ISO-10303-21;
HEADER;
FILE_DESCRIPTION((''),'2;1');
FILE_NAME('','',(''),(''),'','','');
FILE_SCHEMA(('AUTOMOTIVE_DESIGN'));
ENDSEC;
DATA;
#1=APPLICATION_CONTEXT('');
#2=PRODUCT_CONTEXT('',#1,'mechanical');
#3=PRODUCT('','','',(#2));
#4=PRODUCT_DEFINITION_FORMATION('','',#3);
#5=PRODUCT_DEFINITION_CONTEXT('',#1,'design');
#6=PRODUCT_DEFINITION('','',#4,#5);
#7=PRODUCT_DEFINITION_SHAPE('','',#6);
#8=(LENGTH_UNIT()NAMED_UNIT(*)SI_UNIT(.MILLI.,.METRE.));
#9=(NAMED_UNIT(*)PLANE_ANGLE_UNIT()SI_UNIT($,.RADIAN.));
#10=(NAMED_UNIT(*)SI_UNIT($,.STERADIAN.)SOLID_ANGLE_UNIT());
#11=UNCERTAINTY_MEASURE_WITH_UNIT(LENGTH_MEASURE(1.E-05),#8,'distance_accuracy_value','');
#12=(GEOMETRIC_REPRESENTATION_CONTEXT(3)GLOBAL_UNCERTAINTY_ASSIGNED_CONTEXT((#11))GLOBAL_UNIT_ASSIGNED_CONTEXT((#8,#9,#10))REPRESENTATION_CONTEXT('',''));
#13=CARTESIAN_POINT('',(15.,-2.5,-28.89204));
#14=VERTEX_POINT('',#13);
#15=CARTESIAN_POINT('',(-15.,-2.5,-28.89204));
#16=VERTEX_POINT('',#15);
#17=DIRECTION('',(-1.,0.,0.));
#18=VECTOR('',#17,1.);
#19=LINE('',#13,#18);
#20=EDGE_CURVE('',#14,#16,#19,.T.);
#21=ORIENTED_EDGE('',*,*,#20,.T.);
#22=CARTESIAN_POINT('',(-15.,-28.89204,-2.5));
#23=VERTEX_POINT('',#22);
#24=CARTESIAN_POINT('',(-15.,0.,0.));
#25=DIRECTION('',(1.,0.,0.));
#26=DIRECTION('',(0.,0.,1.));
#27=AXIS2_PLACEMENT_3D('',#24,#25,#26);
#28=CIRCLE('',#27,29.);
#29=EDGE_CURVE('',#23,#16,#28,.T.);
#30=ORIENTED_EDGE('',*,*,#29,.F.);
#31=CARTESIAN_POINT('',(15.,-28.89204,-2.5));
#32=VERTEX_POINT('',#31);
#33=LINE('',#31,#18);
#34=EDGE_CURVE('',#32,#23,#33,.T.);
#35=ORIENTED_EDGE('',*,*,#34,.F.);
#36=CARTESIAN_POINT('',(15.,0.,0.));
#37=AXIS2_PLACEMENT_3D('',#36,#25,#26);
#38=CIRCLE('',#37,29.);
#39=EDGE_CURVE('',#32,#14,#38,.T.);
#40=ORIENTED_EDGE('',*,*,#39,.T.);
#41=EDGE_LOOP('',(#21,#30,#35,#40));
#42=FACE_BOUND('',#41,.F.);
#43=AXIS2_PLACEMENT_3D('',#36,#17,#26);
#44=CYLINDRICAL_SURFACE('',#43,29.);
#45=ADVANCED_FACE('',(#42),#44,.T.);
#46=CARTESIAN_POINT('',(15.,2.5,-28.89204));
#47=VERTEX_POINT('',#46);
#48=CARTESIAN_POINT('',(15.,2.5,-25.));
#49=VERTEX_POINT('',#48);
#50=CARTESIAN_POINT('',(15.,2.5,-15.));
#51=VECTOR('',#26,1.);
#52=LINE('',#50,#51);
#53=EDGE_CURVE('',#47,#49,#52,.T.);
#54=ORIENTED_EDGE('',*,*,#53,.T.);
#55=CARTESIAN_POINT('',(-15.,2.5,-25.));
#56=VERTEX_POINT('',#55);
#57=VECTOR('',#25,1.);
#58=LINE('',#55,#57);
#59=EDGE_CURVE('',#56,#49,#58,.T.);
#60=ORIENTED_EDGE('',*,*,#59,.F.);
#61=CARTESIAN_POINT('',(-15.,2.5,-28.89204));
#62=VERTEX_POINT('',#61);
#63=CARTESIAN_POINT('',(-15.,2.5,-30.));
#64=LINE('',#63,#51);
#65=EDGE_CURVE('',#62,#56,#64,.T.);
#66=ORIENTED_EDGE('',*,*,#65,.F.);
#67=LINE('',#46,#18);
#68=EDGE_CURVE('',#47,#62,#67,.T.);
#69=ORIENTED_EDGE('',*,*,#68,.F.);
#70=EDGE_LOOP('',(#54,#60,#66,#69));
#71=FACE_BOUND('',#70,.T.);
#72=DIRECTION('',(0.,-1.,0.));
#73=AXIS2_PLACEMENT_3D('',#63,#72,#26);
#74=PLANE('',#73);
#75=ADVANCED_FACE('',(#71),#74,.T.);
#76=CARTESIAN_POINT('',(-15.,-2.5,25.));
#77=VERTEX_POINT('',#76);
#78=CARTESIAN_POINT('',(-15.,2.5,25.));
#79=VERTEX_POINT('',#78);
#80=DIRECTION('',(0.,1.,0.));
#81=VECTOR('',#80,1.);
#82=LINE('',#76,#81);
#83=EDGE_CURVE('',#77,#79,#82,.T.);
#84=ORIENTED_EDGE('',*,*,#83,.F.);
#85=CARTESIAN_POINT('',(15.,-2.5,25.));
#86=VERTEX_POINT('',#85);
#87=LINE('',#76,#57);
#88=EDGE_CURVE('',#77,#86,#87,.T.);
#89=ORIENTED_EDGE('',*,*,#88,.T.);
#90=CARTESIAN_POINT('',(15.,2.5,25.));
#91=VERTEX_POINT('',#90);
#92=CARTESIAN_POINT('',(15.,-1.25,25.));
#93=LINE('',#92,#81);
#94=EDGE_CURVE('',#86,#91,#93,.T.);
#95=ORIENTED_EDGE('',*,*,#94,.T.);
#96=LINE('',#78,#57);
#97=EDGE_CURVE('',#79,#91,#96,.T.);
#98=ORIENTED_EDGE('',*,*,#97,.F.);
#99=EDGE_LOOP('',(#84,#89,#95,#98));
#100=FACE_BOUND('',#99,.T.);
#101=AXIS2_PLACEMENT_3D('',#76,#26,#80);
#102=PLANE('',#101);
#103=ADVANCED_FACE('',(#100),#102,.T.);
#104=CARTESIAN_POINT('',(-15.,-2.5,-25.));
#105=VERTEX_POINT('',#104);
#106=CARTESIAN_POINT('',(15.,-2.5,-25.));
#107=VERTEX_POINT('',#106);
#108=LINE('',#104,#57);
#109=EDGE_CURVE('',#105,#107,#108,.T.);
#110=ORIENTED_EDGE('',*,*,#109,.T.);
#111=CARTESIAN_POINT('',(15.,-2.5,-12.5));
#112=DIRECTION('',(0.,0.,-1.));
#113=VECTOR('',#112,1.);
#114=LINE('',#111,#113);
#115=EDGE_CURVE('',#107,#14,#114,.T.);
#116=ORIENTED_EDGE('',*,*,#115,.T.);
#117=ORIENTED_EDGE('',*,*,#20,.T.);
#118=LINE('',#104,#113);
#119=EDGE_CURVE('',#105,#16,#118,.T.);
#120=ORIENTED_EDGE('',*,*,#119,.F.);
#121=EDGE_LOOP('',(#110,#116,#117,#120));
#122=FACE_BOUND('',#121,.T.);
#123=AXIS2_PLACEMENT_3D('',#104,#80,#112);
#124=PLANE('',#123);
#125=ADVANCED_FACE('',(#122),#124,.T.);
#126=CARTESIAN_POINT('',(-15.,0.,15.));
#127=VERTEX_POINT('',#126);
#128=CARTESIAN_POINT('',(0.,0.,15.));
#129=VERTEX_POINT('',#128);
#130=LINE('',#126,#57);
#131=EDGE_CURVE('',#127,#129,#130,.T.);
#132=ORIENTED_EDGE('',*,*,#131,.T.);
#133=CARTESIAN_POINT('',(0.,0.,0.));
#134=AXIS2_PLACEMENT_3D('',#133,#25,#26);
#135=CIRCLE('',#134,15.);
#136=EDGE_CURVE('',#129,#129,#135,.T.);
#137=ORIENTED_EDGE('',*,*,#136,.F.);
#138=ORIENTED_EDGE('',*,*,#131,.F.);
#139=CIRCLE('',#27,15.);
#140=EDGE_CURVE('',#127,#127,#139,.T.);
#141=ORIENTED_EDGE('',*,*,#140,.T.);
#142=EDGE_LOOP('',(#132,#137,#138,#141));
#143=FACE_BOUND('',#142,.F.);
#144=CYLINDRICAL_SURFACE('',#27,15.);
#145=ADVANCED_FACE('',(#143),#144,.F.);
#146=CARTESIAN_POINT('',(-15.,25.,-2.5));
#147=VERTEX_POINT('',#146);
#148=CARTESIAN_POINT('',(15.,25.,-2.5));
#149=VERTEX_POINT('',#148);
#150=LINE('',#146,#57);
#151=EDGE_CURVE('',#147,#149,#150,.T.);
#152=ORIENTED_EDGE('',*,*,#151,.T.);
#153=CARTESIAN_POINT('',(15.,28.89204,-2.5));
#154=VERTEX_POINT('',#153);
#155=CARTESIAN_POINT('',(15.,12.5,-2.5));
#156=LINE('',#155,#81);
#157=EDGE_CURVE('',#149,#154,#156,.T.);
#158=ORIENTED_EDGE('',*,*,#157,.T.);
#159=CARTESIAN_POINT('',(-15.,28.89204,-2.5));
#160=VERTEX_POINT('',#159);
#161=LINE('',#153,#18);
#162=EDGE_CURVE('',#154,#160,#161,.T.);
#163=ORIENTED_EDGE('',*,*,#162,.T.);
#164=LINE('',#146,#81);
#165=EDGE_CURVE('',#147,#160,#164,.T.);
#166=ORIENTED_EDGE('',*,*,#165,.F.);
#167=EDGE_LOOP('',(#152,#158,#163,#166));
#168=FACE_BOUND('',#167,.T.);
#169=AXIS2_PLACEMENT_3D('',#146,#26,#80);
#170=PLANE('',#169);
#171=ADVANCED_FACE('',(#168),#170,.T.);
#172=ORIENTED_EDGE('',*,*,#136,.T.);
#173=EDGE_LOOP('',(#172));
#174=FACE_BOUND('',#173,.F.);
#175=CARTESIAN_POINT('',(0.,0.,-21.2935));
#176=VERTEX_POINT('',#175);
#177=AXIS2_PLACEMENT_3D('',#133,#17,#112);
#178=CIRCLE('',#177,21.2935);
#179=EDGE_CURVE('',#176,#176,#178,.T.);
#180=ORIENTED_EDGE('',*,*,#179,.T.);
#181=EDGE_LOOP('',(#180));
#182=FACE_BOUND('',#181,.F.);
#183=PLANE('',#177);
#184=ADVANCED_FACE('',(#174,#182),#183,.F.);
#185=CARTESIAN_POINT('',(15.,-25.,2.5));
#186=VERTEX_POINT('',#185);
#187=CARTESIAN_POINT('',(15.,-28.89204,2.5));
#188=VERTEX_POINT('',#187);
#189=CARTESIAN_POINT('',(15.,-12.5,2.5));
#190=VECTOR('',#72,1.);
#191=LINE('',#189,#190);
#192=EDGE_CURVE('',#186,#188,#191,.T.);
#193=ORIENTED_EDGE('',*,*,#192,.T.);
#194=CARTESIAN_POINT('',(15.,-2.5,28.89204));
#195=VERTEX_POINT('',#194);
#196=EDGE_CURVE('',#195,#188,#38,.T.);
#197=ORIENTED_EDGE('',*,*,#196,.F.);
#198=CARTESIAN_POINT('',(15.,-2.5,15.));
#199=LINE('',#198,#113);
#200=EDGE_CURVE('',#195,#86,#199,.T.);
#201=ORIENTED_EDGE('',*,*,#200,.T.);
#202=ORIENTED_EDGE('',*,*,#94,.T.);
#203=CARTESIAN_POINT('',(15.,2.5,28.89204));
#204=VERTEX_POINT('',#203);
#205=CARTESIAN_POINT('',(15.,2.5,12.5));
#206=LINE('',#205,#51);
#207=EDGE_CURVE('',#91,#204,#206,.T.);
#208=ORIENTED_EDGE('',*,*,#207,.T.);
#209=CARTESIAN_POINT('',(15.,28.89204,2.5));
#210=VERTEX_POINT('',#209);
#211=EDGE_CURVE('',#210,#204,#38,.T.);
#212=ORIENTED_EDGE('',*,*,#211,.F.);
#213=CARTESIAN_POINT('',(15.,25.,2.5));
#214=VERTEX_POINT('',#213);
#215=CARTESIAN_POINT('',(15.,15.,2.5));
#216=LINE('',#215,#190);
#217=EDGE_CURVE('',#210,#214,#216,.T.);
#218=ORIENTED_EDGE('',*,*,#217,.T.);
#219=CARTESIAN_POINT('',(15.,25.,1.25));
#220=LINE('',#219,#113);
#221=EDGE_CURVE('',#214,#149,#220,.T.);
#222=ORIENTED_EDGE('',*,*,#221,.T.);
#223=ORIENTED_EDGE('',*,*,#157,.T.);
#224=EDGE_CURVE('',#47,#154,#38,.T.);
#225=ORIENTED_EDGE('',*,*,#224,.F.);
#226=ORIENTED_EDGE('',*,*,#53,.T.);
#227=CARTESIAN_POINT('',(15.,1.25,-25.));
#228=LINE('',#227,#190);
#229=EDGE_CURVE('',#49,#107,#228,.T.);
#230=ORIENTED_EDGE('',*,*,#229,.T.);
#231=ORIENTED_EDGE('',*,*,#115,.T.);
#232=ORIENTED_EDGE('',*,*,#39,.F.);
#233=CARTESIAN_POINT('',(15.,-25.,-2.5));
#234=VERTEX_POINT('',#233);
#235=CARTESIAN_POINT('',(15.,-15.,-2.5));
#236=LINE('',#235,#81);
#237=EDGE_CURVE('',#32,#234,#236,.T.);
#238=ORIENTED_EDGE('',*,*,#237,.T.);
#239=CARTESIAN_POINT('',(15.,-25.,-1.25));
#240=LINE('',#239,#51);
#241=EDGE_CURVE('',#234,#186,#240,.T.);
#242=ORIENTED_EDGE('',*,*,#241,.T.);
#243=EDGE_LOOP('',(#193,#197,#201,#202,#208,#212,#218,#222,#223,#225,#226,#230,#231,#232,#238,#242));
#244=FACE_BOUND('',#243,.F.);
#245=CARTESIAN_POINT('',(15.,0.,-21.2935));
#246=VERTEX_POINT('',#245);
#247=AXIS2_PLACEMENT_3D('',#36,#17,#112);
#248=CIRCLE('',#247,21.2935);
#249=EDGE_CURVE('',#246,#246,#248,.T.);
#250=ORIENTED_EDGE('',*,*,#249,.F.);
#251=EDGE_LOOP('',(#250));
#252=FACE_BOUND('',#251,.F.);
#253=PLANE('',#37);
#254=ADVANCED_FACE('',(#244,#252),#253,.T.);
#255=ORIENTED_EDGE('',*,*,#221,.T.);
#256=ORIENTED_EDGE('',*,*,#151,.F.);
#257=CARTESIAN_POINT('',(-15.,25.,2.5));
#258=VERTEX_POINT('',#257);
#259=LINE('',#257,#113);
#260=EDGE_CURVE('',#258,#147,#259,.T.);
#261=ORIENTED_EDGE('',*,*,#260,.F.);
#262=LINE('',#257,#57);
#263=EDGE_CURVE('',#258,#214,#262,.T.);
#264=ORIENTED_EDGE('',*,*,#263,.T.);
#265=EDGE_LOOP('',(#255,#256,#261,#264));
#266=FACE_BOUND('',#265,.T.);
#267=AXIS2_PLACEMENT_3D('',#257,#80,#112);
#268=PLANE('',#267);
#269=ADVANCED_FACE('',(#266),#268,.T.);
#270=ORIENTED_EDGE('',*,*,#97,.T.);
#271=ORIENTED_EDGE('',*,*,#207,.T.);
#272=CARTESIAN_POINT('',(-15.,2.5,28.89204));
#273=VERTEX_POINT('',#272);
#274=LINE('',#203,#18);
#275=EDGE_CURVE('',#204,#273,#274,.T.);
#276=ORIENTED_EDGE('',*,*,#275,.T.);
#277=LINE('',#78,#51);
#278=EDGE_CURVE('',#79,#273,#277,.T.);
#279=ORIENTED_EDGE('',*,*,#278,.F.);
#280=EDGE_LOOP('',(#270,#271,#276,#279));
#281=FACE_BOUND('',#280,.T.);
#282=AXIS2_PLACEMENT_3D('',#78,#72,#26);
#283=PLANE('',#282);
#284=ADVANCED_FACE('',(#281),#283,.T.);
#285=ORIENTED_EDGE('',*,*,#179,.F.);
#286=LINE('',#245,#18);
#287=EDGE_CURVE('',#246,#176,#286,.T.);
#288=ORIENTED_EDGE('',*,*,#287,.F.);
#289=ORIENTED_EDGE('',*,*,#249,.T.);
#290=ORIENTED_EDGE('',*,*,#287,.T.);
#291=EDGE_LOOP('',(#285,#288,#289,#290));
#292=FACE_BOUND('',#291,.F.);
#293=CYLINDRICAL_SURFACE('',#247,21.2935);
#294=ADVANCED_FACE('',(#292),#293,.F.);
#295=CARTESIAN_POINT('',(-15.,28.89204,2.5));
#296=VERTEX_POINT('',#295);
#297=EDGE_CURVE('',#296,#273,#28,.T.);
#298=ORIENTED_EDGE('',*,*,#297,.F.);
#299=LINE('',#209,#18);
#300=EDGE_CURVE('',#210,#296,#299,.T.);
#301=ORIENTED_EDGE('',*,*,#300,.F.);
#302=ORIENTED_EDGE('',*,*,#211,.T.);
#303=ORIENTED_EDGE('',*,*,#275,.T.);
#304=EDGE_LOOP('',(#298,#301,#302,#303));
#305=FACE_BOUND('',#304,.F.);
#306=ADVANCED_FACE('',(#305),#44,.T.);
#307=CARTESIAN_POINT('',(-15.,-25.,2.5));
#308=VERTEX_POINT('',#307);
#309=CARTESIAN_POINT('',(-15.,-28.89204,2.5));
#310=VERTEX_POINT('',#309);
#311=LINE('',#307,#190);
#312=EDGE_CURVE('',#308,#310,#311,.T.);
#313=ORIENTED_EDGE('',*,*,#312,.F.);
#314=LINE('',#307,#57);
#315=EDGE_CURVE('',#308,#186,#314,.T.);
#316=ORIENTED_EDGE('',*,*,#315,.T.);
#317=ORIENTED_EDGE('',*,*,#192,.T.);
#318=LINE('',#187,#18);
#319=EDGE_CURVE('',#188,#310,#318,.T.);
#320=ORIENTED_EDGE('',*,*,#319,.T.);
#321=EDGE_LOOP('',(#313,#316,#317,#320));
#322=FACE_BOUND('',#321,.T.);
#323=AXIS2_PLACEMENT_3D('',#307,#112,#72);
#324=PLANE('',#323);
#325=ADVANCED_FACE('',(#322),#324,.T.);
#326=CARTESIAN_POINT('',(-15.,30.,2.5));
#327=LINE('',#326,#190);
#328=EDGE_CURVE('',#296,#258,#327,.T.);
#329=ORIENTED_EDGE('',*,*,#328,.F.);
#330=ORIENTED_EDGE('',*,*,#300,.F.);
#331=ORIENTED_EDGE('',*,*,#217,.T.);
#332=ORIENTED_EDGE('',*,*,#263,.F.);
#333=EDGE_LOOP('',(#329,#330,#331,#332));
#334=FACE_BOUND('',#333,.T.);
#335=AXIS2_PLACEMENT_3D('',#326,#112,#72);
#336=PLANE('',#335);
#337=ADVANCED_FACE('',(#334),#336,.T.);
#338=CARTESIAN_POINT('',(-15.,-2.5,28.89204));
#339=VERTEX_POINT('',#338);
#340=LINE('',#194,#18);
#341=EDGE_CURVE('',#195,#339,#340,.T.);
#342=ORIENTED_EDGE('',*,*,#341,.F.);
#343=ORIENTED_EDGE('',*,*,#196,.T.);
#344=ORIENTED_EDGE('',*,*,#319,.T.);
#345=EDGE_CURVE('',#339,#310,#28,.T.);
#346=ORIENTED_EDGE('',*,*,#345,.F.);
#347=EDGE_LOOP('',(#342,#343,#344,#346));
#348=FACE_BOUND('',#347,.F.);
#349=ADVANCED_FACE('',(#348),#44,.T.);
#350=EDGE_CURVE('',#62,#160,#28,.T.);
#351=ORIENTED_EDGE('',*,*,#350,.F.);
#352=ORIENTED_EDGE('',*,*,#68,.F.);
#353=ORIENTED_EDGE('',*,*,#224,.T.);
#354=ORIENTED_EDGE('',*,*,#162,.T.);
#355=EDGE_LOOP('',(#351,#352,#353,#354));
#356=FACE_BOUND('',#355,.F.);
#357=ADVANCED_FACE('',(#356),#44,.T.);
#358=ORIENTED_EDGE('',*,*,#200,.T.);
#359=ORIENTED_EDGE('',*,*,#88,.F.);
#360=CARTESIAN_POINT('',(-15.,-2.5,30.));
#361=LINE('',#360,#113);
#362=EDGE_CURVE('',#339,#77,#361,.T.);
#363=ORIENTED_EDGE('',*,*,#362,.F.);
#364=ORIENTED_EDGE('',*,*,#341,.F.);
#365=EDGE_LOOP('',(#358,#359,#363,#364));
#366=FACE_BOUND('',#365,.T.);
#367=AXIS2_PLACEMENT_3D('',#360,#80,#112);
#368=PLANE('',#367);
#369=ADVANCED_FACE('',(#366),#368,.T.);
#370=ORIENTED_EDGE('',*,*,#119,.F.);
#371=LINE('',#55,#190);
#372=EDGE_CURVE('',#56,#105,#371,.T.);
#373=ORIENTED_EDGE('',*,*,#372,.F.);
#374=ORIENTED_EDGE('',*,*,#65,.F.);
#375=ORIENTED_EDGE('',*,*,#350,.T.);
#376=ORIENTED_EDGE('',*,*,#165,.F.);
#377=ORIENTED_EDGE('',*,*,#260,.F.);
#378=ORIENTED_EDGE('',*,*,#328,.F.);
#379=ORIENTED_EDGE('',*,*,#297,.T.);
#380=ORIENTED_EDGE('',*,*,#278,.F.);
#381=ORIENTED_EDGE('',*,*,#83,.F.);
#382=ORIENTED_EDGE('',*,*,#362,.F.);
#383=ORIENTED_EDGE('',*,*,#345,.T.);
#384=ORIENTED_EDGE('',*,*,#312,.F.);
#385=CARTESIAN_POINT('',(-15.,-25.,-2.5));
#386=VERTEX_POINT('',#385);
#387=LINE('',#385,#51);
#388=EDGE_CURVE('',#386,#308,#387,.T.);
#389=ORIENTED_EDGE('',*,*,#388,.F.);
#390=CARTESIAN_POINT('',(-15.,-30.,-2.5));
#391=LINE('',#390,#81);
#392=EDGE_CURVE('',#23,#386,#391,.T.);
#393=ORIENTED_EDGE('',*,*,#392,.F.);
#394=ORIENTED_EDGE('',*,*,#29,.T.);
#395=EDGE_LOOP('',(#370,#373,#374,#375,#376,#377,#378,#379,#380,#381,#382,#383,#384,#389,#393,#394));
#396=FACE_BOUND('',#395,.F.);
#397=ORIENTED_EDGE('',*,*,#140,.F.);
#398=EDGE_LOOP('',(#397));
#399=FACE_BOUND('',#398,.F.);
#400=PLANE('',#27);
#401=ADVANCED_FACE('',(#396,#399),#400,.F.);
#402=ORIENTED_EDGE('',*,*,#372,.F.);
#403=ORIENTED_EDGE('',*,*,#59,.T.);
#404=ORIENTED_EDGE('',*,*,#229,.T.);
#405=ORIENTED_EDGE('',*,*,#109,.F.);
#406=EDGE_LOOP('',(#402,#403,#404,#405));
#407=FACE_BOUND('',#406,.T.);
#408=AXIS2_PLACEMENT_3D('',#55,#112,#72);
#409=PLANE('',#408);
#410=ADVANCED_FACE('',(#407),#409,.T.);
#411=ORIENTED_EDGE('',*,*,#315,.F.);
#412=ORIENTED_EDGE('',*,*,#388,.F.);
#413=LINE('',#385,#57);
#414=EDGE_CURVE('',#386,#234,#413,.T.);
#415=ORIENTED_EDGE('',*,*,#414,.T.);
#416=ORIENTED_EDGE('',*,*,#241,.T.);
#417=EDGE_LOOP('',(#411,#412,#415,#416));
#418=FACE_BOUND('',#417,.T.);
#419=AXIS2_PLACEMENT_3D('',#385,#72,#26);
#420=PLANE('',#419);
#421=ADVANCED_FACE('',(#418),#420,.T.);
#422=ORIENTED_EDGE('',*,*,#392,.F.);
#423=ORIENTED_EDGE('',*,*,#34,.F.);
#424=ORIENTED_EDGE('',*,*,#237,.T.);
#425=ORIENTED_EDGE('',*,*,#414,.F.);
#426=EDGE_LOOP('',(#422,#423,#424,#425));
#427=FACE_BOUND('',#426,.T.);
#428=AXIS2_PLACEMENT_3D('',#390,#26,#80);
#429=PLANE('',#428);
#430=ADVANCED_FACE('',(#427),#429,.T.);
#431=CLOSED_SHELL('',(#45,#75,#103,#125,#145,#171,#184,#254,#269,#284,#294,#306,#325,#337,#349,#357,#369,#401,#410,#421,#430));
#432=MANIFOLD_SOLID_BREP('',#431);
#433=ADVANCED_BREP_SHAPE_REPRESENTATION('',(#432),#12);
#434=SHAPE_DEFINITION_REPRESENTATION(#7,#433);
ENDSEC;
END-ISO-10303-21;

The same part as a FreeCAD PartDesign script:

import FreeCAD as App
import Part
import Sketcher


def add_polygon(sketch, points):
    """Adds a closed chain of lines whose ends are joined by coincident constraints."""
    first, n = sketch.GeometryCount, len(points)
    for a, b in zip(points, points[1:] + points[:1]):
        sketch.addGeometry(Part.LineSegment(App.Vector(*a, 0), App.Vector(*b, 0)), False)
    for i in range(n):
        sketch.addConstraint(Sketcher.Constraint("Coincident", first + i, 2, first + (i + 1) % n, 1))

doc = App.newDocument("Part")
body = doc.addObject("PartDesign::Body", "Body")

sketch1 = body.newObject("Sketcher::SketchObject", "Sketch")
sketch1.AttachmentSupport = (doc.getObject("XZ_Plane"), [""])
sketch1.MapMode = "FlatFace"
add_polygon(sketch1, [(-15, 29), (-15, 15), (15, 15), (15, 29)])
sketch1.addConstraint([
    Sketcher.Constraint("Vertical", 0),
    Sketcher.Constraint("Horizontal", 1),
    Sketcher.Constraint("Vertical", 2),
    Sketcher.Constraint("Horizontal", 3),
    Sketcher.Constraint("DistanceX", 0, 2, -1, 1, 15.0),
    Sketcher.Constraint("DistanceY", -1, 1, 0, 2, 15.0),
    Sketcher.Constraint("DistanceX", -1, 1, 1, 2, 15.0),
    Sketcher.Constraint("DistanceY", 0, 2, 0, 1, 14.0),
])
revolution = body.newObject("PartDesign::Revolution", "Revolution")
revolution.Profile = sketch1
revolution.ReferenceAxis = (sketch1, ["H_Axis"])
revolution.Angle = 360

sketch2 = body.newObject("Sketcher::SketchObject", "Sketch001")
sketch2.AttachmentSupport = (doc.getObject("YZ_Plane"), [""])
sketch2.MapMode = "FlatFace"
sketch2.AttachmentOffset = App.Placement(App.Vector(0, 0, 15), App.Rotation())
sketch2.addGeometry(Part.Circle(App.Vector(0, 0, 0), App.Vector(0, 0, 1), 21.2935), False)
sketch2.addConstraint([
    Sketcher.Constraint("Coincident", 0, 3, -1, 1),
    Sketcher.Constraint("Diameter", 0, 42.587),
])
doc.recompute()
hole = body.newObject("PartDesign::Hole", "Hole")
hole.Profile = sketch2
hole.ThreadType = "None"
hole.Diameter = 42.587
hole.DepthType = "Dimension"
hole.Depth = 15
hole.DrillPoint = "Flat"

sketch3 = body.newObject("Sketcher::SketchObject", "Sketch002")
sketch3.AttachmentSupport = (doc.getObject("YZ_Plane"), [""])
sketch3.MapMode = "FlatFace"
sketch3.AttachmentOffset = App.Placement(App.Vector(0, 0, -15), App.Rotation())
add_polygon(sketch3, [(-2.5, 30), (2.5, 30), (2.5, 25), (-2.5, 25)])
sketch3.addConstraint([
    Sketcher.Constraint("Horizontal", 0),
    Sketcher.Constraint("Vertical", 1),
    Sketcher.Constraint("Horizontal", 2),
    Sketcher.Constraint("Vertical", 3),
    Sketcher.Constraint("Equal", 2, 1),
    Sketcher.Constraint("DistanceX", -1, 1, 0, 2, 2.5),
    Sketcher.Constraint("DistanceX", 2, 2, -1, 1, 2.5),
    Sketcher.Constraint("DistanceY", -1, 1, 0, 2, 30.0),
])
pocket1 = body.newObject("PartDesign::Pocket", "Pocket")
pocket1.Profile = sketch3
pocket1.Length = 85.8062
pocket1.Reversed = True
doc.recompute()

polarpattern = body.newObject("PartDesign::PolarPattern", "PolarPattern")
polarpattern.Originals = [pocket1]
polarpattern.Axis = (doc.getObject("X_Axis"), [""])
polarpattern.Angle = 360
polarpattern.Occurrences = 4
body.Tip = polarpattern

doc.recompute()
